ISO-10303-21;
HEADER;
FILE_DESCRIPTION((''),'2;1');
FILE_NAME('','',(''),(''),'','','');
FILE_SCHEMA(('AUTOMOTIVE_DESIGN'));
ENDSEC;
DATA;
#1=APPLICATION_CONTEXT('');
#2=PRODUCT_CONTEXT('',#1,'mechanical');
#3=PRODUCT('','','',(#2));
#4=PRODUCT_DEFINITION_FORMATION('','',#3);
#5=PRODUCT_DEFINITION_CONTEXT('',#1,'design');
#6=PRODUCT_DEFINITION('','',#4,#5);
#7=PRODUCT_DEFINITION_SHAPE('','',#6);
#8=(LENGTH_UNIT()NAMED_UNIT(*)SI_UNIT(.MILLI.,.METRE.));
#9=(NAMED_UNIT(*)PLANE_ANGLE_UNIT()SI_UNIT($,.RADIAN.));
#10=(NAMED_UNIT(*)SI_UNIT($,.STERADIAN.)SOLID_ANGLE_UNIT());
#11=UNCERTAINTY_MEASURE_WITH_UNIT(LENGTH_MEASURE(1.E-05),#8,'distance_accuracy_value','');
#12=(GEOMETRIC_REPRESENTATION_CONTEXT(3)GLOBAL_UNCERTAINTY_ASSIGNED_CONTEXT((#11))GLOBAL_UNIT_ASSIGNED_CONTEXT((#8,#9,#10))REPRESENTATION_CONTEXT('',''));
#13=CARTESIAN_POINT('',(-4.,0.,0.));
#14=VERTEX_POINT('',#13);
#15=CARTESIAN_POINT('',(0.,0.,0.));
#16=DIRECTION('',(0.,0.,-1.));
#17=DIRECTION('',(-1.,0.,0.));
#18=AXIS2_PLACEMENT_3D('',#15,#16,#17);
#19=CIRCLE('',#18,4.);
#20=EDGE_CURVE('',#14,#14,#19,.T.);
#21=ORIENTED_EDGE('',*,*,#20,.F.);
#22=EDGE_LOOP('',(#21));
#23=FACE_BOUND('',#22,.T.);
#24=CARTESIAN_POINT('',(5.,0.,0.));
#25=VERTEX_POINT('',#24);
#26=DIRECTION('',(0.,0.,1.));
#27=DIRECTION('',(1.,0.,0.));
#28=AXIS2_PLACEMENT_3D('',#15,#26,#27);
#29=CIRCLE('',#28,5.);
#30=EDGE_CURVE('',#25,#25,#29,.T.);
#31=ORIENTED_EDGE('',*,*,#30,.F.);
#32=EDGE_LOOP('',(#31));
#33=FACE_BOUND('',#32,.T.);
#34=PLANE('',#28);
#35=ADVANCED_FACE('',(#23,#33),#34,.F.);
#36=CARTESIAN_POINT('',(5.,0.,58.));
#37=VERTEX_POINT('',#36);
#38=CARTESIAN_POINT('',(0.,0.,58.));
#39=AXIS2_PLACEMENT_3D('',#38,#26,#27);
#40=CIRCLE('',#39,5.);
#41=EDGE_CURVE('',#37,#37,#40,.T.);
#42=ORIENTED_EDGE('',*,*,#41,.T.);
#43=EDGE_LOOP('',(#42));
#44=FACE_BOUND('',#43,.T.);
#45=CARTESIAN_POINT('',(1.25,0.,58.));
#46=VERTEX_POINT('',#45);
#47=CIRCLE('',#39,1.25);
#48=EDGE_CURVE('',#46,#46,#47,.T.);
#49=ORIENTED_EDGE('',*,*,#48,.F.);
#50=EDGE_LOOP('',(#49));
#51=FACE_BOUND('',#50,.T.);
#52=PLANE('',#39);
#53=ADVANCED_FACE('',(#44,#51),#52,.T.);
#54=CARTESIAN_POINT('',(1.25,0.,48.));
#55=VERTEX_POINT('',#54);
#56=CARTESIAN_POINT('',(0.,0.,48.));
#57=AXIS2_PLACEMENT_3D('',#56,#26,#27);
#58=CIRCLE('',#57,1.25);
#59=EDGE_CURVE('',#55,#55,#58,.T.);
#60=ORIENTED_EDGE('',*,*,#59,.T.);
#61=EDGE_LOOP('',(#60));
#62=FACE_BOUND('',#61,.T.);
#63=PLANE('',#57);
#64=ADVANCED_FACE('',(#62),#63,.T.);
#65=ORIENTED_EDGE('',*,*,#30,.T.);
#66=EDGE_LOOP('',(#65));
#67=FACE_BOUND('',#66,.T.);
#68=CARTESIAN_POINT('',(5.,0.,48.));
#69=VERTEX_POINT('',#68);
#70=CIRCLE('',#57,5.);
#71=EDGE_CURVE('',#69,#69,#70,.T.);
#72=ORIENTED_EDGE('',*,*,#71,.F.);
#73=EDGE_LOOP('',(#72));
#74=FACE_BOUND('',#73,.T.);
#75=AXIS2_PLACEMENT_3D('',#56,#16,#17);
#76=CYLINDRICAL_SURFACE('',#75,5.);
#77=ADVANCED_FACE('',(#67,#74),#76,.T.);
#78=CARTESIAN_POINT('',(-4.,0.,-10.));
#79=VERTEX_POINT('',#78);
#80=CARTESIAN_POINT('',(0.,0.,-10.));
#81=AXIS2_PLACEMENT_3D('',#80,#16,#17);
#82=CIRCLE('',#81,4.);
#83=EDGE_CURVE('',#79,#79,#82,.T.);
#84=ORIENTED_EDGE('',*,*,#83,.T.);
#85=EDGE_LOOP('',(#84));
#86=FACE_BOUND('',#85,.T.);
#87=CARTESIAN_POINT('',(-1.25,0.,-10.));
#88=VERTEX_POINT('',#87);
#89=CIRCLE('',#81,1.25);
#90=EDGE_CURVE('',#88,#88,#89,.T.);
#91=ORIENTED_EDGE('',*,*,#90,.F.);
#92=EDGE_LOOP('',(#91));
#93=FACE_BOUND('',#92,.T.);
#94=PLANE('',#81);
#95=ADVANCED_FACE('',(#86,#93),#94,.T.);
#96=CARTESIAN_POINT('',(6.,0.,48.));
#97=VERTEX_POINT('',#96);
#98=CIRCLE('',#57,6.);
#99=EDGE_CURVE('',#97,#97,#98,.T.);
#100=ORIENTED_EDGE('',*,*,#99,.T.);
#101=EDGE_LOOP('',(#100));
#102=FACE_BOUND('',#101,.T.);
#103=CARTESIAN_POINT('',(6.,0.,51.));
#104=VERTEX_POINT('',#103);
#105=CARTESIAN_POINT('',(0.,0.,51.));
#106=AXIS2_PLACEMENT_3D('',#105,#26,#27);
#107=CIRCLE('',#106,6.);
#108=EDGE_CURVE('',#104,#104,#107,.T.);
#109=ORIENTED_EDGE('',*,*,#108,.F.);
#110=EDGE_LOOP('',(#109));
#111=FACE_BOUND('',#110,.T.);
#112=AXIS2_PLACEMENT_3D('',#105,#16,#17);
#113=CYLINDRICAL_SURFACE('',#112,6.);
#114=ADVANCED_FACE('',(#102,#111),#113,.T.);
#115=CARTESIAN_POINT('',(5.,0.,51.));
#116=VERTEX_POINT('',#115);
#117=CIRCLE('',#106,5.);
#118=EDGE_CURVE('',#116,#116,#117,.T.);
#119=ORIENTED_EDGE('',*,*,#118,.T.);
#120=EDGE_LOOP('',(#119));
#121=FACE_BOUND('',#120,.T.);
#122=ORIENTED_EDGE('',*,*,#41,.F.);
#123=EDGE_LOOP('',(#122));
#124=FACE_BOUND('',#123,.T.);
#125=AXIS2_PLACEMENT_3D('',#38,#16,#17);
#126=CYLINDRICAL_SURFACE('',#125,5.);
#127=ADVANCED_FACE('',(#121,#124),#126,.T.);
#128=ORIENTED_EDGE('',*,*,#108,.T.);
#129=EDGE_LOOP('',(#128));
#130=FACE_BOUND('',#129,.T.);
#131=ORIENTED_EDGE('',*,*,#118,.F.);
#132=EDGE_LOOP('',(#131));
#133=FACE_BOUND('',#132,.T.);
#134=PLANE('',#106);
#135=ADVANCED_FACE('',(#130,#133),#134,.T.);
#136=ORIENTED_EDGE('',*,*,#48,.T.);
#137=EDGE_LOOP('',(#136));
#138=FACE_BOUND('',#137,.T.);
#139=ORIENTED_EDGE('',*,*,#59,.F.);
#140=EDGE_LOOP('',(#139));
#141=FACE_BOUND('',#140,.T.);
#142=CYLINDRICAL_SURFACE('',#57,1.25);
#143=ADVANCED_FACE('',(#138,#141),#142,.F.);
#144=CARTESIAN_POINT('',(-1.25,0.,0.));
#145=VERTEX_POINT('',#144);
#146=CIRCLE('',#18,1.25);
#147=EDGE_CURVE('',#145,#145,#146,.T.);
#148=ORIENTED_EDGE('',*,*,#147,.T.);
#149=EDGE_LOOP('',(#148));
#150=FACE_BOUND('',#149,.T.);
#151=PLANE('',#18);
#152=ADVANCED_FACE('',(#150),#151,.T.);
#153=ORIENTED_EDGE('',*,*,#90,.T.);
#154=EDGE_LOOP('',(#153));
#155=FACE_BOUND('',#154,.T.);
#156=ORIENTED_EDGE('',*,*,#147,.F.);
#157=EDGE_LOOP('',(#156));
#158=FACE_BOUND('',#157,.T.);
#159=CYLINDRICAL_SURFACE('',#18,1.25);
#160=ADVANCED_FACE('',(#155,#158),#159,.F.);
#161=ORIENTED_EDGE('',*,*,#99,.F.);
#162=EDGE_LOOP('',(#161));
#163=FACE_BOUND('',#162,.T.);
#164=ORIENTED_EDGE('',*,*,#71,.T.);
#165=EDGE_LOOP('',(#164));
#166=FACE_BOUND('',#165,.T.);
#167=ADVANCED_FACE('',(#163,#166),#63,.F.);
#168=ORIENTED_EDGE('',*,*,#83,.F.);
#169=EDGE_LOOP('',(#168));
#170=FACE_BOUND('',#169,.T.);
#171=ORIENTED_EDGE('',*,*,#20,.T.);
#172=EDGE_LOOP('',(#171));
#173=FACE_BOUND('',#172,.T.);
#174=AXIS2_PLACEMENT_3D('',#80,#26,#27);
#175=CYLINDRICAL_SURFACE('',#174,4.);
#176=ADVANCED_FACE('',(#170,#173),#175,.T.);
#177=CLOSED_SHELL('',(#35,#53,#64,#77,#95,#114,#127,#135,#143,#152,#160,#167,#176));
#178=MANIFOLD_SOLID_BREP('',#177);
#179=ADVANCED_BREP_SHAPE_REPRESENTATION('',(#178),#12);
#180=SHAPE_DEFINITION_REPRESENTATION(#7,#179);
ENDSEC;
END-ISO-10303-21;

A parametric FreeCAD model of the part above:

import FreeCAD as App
import Part
import Sketcher
from FreeCAD import Vector
Q = App.Units.Quantity

doc = App.newDocument("Part")
body = doc.addObject("PartDesign::Body", "Body")

# Sketch on XY plane
sketch1 = body.newObject("Sketcher::SketchObject", "Sketch")
sketch1.AttachmentSupport = (doc.getObject("XY_Plane"), [""])
sketch1.MapMode = "FlatFace"
sketch1.addGeometry(Part.Circle(Vector(0, 0, 0), Vector(0, 0, 1), 5), False)
sketch1.addConstraint([
    Sketcher.Constraint("Coincident", 0, 3, -1, 1),
    Sketcher.Constraint("Diameter", 0, Q("10 mm")),
])
pad1 = body.newObject("PartDesign::Pad", "Pad")
pad1.Profile = sketch1
pad1.Length = 48

# Sketch on XY plane
sketch2 = body.newObject("Sketcher::SketchObject", "Sketch001")
sketch2.AttachmentSupport = (doc.getObject("XY_Plane"), [""])
sketch2.MapMode = "FlatFace"
sketch2.AttachmentOffset = App.Placement(Vector(0, 0, 48), App.Rotation())
sketch2.addGeometry(Part.Circle(Vector(0, 0, 0), Vector(0, 0, 1), 6), False)
sketch2.addConstraint([
    Sketcher.Constraint("Coincident", 0, 3, -1, 1),
    Sketcher.Constraint("Diameter", 0, Q("12 mm")),
])
pad2 = body.newObject("PartDesign::Pad", "Pad001")
pad2.Profile = sketch2
pad2.Length = 3

# Sketch on XY plane
sketch3 = body.newObject("Sketcher::SketchObject", "Sketch002")
sketch3.AttachmentSupport = (doc.getObject("XY_Plane"), [""])
sketch3.MapMode = "FlatFace"
sketch3.AttachmentOffset = App.Placement(Vector(0, 0, 51), App.Rotation())
sketch3.addGeometry(Part.Circle(Vector(0, 0, 0), Vector(0, 0, 1), 5), False)
sketch3.addConstraint([
    Sketcher.Constraint("Coincident", 0, 3, -1, 1),
    Sketcher.Constraint("Diameter", 0, Q("10 mm")),
])
pad3 = body.newObject("PartDesign::Pad", "Pad002")
pad3.Profile = sketch3
pad3.Length = 7

# Sketch on XY plane
sketch4 = body.newObject("Sketcher::SketchObject", "Sketch003")
sketch4.AttachmentSupport = (doc.getObject("XY_Plane"), [""])
sketch4.MapMode = "FlatFace"
sketch4.addGeometry(Part.Circle(Vector(0, 0, 0), Vector(0, 0, 1), 4), False)
sketch4.addConstraint([
    Sketcher.Constraint("Coincident", 0, 3, -1, 1),
    Sketcher.Constraint("Diameter", 0, Q("8 mm")),
])
pad4 = body.newObject("PartDesign::Pad", "Pad003")
pad4.Profile = sketch4
pad4.Length = 10
pad4.Reversed = True

# Sketch on XY plane
sketch5 = body.newObject("Sketcher::SketchObject", "Sketch004")
sketch5.AttachmentSupport = (doc.getObject("XY_Plane"), [""])
sketch5.MapMode = "FlatFace"
sketch5.AttachmentOffset = App.Placement(Vector(0, 0, 58), App.Rotation())
sketch5.addGeometry(Part.Circle(Vector(0, 0, 0), Vector(0, 0, 1), 1.2), False)
sketch5.addConstraint([
    Sketcher.Constraint("Coincident", 0, 3, -1, 1),
    Sketcher.Constraint("Diameter", 0, Q("2.5 mm")),
])
pocket1 = body.newObject("PartDesign::Pocket", "Pocket")
pocket1.Profile = sketch5
pocket1.Length = 10

# Sketch on XY plane
sketch6 = body.newObject("Sketcher::SketchObject", "Sketch005")
sketch6.AttachmentSupport = (doc.getObject("XY_Plane"), [""])
sketch6.MapMode = "FlatFace"
sketch6.addGeometry(Part.Circle(Vector(0, 0, 0), Vector(0, 0, 1), 1.2), False)
sketch6.addConstraint([
    Sketcher.Constraint("Coincident", 0, 3, -1, 1),
    Sketcher.Constraint("Diameter", 0, Q("2.5 mm")),
])
pocket2 = body.newObject("PartDesign::Pocket", "Pocket001")
pocket2.Profile = sketch6
pocket2.Length = 10

doc.recompute()
